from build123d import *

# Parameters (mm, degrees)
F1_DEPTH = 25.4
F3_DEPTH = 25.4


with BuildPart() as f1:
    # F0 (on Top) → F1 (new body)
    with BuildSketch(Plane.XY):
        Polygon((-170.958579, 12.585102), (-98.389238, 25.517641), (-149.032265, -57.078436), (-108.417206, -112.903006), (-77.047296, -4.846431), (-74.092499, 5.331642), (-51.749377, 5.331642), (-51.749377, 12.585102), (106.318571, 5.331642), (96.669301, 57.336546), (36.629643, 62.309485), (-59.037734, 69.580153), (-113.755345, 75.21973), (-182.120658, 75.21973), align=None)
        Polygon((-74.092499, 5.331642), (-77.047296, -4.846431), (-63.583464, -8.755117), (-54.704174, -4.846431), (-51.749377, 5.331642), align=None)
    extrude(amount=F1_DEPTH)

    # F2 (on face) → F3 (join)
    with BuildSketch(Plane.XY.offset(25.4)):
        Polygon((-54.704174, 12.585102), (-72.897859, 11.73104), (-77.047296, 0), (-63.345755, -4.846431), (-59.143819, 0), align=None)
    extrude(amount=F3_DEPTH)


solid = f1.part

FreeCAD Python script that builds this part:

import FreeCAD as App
import Part
import Sketcher
from FreeCAD import Vector
Q = App.Units.Quantity


def add_polygon(sketch, points):
    """Adds a closed chain of lines whose ends are joined by coincident constraints."""
    first, n = sketch.GeometryCount, len(points)
    for a, b in zip(points, points[1:] + points[:1]):
        sketch.addGeometry(Part.LineSegment(App.Vector(*a, 0), App.Vector(*b, 0)), False)
    for i in range(n):
        sketch.addConstraint(Sketcher.Constraint("Coincident", first + i, 2, first + (i + 1) % n, 1))

doc = App.newDocument("Part")
params = doc.addObject("Spreadsheet::Sheet", "Params")
for row, (alias, value) in enumerate([
    ("pad1_length", "1 in"),
    ("pad2_length", "1 in"),
], start=1):
    params.set(f"A{row}", alias)
    params.set(f"B{row}", "=" + value)
    params.setAlias(f"B{row}", alias)

body = doc.addObject("PartDesign::Body", "Body")

# Sketch on XY plane
sketch1 = body.newObject("Sketcher::SketchObject", "Sketch")
sketch1.AttachmentSupport = (doc.getObject("XY_Plane"), [""])
sketch1.MapMode = "FlatFace"
add_polygon(sketch1, [(-170.958579, 12.585102), (-98.389238, 25.517641), (-149.032265, -57.078436), (-108.417206, -112.903006), (-77.047296, -4.846431), (-63.583464, -8.755117), (-54.704174, -4.846431), (-51.749377, 5.331642), (-51.749377, 12.585102), (106.318571, 5.331642), (96.669301, 57.336546), (36.629643, 62.309485), (-59.037734, 69.580153), (-113.755345, 75.21973), (-182.120658, 75.21973)])  # lines 0-14
sketch1.addConstraint([
    Sketcher.Constraint("Vertical", 7),
    Sketcher.Constraint("Horizontal", 13),
    Sketcher.Constraint("Perpendicular", 3, 4),
    Sketcher.Constraint("Perpendicular", 4, 6),
    Sketcher.Constraint("Perpendicular", 0, 14),
    Sketcher.Constraint("Horizontal", 3, 2, 5, 2),
    Sketcher.Constraint("Horizontal", 6, 2, 8, 2),
    Sketcher.Constraint("Horizontal", 7, 2, 14, 2),
    Sketcher.Constraint("Distance", 6, Q("10.598302 mm")),
    Sketcher.Constraint("DistanceY", 7, 1, 7, 2, Q("7.25346 mm")),
    Sketcher.Constraint("DistanceY", -1, 1, 7, 2, Q("12.585102 mm")),
    Sketcher.Constraint("DistanceX", -1, 1, 9, 2, Q("96.669301 mm")),
    Sketcher.Constraint("DistanceX", 1, 2, 4, 2, Q("85.448801 mm")),
    Sketcher.Constraint("DistanceY", 6, 2, 0, 2, Q("20.185999 mm")),
    Sketcher.Constraint("Distance", 4, Q("14.019722 mm")),
    Sketcher.Constraint("Distance", 12, Q("55.00747 mm")),
    Sketcher.Constraint("DistanceX", 13, 2, 13, 1, Q("68.365313 mm")),
    Sketcher.Constraint("DistanceX", 0, 2, -1, 1, Q("98.389238 mm")),
    Sketcher.Constraint("DistanceY", 3, 2, -1, 1, Q("4.846431 mm")),
    Sketcher.Constraint("DistanceX", -1, 1, 8, 2, Q("106.318571 mm")),
    Sketcher.Constraint("DistanceY", -1, 1, 12, 2, Q("75.21973 mm")),
    Sketcher.Constraint("DistanceX", 13, 2, -1, 1, Q("182.120658 mm")),
    Sketcher.Constraint("DistanceX", 1, 2, 2, 2, Q("40.615059 mm")),
    Sketcher.Constraint("DistanceY", 2, 2, 1, 2, Q("55.82457 mm")),
    Sketcher.Constraint("DistanceX", 4, 2, 5, 2, Q("8.87929 mm")),
    Sketcher.Constraint("DistanceX", 0, 2, 6, 2, Q("46.639861 mm")),
    Sketcher.Constraint("DistanceX", 10, 2, 9, 2, Q("60.039658 mm")),
    Sketcher.Constraint("DistanceY", 9, 2, 10, 2, Q("4.972939 mm")),
    Sketcher.Constraint("DistanceY", 7, 2, 11, 2, Q("56.995051 mm")),
    Sketcher.Constraint("Distance", 9, Q("52.892518 mm")),
])
pad1 = body.newObject("PartDesign::Pad", "Pad")
pad1.Profile = sketch1
pad1.setExpression("Length", "Params.pad1_length")

# Sketch on XY plane
sketch2 = body.newObject("Sketcher::SketchObject", "Sketch001")
sketch2.AttachmentSupport = (doc.getObject("XY_Plane"), [""])
sketch2.MapMode = "FlatFace"
sketch2.AttachmentOffset = App.Placement(Vector(0, 0, 1 * 25.4), App.Rotation())
add_polygon(sketch2, [(-55, 13), (-73, 12), (-77, 0), (-63, -5), (-59, 0)])  # lines 0-4
sketch2.addConstraint([
    Sketcher.Constraint("PointOnObject", 1, 2, -1),
    Sketcher.Constraint("PointOnObject", 3, 2, -1),
    Sketcher.Constraint("Perpendicular", 1, 2),
    Sketcher.Constraint("DistanceY", -1, 1, 4, 2, Q("12.585102 mm")),
    Sketcher.Constraint("Distance", 0, Q("18.21372 mm")),
    Sketcher.Constraint("Distance", 3, Q("6.414371 mm")),
    Sketcher.Constraint("DistanceX", 0, 2, -1, 1, Q("72.897859 mm")),
    Sketcher.Constraint("DistanceY", -1, 1, 0, 2, Q("11.73104 mm")),
    Sketcher.Constraint("DistanceY", 2, 2, -1, 1, Q("4.846431 mm")),
    Sketcher.Constraint("DistanceX", 3, 2, -1, 1, Q("59.143819 mm")),
])
pad2 = body.newObject("PartDesign::Pad", "Pad001")
pad2.Profile = sketch2
pad2.setExpression("Length", "Params.pad2_length")

doc.recompute()
